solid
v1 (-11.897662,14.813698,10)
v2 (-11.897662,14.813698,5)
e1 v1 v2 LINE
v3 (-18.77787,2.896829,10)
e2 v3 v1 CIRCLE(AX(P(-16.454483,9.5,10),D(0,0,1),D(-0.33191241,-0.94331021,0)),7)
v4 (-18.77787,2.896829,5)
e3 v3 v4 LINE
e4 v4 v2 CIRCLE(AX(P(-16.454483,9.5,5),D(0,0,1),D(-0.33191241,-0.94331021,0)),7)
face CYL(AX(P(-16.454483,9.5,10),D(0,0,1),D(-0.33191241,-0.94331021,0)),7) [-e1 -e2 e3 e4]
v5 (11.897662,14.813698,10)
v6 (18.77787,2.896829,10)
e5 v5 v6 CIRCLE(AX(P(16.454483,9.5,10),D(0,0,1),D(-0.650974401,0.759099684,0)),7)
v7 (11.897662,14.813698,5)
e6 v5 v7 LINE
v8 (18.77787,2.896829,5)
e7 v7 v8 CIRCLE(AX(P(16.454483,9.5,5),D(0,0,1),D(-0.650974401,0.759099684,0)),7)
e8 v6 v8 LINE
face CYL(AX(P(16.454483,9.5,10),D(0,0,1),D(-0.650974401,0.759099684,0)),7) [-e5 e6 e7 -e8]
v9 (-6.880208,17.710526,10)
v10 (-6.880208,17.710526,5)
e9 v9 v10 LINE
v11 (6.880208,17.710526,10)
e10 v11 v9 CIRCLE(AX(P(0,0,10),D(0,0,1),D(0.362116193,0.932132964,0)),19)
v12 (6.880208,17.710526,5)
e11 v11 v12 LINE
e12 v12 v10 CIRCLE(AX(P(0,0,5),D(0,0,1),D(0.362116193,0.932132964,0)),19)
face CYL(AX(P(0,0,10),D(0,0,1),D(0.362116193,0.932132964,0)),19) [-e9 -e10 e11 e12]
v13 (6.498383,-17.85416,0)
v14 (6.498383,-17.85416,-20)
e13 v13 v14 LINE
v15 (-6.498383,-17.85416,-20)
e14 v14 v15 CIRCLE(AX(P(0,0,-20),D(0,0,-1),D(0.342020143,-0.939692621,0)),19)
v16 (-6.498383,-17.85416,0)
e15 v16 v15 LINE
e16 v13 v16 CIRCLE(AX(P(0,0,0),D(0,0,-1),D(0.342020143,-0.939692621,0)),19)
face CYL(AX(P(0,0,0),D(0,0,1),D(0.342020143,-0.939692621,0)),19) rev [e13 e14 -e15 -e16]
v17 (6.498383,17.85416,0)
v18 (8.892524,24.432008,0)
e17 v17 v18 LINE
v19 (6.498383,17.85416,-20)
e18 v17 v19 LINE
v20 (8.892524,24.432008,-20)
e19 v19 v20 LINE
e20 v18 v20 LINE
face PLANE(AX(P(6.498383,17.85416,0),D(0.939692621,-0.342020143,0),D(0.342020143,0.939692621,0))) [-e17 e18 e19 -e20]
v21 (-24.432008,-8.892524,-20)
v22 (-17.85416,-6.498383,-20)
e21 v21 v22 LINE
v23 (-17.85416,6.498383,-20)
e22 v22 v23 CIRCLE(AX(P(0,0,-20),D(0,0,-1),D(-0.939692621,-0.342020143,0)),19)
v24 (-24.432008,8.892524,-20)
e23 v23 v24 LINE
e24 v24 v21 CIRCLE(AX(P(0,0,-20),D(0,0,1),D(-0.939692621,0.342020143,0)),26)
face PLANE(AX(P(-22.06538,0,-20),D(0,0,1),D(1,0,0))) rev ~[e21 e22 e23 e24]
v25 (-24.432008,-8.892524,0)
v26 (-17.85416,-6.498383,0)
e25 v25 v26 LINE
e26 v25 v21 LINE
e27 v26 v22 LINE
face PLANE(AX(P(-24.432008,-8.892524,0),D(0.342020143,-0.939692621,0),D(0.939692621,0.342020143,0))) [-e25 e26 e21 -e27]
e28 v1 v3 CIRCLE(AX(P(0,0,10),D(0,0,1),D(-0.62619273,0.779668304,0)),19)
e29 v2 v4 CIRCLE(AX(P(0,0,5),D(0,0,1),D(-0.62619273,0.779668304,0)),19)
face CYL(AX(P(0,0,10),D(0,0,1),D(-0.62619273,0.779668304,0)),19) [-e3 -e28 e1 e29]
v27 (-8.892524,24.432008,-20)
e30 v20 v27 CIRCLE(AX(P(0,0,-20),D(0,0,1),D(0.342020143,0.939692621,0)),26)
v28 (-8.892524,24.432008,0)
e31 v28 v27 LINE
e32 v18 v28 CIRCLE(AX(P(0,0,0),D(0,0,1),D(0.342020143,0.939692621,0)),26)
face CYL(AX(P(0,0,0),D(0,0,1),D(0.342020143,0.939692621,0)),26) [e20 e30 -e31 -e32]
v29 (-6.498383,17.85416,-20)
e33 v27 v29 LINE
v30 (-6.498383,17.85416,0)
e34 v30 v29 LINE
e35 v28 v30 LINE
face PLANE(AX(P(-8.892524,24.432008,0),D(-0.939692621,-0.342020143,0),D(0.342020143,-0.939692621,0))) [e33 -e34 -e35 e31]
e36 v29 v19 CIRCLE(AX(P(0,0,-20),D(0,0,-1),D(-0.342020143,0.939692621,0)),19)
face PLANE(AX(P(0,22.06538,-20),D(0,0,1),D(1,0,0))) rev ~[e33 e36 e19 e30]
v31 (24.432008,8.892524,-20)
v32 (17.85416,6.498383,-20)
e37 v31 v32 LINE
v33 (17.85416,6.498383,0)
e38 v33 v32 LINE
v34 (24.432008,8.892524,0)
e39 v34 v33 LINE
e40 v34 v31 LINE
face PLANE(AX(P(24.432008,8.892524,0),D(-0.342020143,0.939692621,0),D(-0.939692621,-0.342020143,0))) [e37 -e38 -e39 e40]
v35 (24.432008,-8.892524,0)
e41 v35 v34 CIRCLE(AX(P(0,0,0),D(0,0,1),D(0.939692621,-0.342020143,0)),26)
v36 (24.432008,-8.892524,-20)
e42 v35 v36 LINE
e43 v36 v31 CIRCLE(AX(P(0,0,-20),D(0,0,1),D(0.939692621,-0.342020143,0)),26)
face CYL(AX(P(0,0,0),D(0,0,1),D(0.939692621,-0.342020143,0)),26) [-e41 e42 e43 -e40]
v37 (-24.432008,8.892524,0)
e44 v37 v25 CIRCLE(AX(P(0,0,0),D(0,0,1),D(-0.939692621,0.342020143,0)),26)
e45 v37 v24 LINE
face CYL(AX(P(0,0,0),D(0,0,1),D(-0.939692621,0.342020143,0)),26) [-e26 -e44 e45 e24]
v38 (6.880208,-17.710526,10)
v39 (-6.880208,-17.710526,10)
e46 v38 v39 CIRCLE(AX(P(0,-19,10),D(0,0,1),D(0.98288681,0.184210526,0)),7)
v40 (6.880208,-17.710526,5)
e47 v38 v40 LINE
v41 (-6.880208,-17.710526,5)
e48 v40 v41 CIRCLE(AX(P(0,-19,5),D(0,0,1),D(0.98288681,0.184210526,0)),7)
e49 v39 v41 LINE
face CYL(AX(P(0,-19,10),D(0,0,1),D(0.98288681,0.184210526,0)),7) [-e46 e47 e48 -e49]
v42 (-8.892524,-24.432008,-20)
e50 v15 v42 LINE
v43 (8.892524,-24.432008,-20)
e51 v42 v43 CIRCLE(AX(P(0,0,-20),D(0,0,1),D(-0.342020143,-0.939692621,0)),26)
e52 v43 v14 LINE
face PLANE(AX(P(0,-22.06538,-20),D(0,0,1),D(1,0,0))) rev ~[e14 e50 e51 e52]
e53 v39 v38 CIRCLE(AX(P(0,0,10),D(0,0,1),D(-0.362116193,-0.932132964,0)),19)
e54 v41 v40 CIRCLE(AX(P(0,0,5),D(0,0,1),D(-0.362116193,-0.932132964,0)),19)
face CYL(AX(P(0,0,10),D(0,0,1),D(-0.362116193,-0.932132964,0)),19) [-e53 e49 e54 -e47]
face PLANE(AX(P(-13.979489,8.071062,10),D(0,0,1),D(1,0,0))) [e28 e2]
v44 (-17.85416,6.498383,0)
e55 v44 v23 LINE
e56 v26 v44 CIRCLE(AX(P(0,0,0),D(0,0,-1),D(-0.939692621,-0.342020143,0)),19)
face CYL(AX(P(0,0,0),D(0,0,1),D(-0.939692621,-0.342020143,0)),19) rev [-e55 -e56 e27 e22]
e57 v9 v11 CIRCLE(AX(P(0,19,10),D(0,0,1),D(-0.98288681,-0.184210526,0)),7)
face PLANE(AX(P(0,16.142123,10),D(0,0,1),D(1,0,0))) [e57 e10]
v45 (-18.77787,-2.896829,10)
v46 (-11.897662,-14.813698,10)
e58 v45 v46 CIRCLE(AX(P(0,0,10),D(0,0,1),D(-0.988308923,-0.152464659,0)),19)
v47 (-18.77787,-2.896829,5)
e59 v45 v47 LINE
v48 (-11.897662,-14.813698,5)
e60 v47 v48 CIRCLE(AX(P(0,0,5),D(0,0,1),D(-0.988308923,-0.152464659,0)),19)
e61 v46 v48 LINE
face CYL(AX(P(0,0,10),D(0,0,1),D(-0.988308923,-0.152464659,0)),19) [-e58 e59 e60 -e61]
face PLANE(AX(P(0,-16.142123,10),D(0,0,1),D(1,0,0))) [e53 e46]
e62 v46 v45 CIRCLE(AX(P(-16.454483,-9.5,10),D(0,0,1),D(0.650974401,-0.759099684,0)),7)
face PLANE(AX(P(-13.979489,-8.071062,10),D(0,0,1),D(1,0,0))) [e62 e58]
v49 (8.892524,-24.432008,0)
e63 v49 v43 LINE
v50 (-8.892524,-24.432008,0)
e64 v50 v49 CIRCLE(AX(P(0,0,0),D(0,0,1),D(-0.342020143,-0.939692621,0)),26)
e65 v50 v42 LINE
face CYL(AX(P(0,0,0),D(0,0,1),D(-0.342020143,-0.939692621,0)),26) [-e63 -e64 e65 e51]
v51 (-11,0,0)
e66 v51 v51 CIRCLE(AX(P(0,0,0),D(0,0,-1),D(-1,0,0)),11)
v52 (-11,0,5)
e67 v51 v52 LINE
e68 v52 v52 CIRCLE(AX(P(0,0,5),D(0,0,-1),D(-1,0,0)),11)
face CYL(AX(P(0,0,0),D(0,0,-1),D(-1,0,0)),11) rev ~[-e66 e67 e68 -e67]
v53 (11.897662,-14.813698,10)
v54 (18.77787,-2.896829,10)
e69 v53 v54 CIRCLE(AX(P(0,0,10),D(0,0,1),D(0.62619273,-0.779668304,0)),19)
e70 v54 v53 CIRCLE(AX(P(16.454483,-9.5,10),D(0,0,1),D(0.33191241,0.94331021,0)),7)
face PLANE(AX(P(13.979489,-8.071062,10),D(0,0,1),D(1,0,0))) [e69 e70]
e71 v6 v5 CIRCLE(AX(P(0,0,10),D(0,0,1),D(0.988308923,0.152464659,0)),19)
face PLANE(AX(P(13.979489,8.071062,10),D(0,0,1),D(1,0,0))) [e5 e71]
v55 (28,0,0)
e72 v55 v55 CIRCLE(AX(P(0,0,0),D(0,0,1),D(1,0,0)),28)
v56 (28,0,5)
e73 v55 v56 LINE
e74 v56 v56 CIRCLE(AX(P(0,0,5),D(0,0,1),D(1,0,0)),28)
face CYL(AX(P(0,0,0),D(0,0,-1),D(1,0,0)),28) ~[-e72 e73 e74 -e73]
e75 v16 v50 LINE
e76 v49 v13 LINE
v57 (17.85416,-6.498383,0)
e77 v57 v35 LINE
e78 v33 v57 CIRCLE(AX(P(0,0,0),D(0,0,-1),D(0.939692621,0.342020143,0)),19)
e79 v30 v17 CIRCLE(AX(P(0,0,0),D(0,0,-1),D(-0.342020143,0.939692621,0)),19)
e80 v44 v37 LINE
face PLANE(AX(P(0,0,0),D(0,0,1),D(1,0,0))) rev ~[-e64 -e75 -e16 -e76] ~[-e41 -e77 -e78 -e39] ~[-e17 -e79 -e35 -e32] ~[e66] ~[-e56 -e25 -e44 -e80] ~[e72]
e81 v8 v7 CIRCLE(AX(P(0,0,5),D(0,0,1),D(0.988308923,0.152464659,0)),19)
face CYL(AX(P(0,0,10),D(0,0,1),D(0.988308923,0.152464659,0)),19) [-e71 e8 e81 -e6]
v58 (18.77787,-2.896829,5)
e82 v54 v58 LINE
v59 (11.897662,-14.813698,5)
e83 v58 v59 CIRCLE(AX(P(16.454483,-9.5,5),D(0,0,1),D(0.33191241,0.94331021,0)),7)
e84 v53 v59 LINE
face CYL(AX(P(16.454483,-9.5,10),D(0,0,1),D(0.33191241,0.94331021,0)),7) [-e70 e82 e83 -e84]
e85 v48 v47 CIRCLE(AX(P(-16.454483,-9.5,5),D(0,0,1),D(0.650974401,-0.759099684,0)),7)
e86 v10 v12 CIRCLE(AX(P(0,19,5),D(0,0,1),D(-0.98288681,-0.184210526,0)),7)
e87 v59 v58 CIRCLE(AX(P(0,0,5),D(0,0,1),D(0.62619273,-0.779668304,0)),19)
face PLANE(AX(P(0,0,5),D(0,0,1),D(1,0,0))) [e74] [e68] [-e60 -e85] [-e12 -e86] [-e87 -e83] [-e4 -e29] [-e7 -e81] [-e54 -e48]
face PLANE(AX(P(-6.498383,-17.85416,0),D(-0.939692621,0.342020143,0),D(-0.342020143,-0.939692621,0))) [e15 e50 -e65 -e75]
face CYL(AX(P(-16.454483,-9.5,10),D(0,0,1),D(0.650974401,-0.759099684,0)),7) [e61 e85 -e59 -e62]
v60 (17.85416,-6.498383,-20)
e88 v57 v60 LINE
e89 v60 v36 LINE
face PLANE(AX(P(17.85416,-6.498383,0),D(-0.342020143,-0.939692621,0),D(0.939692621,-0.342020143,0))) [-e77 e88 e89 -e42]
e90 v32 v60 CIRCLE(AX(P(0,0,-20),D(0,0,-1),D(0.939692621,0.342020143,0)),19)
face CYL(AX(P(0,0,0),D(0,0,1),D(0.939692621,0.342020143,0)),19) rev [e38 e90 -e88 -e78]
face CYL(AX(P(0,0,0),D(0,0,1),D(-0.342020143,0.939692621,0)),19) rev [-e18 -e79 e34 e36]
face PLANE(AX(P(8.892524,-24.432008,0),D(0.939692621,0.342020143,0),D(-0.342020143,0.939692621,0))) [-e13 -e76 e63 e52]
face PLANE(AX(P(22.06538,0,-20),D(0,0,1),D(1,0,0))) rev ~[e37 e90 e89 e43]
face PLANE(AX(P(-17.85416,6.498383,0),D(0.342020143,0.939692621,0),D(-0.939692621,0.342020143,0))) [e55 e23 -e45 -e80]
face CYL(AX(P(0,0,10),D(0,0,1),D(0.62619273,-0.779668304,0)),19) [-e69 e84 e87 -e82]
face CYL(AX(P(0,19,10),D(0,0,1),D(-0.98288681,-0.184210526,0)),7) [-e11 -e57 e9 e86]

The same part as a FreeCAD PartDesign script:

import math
import FreeCAD as App
import Part
import Sketcher

V = App.Vector
Q = App.Units.Quantity

doc = App.newDocument("Part")
params = doc.addObject("Spreadsheet::Sheet", "Params")
for row, (alias, value) in enumerate([
    ("sketch1_diameter", "56 mm"),
    ("pad1_length", "5 mm"),
    ("sketch2_radius", "19 mm"),
    ("sketch2_radius2", "26 mm"),
    ("pad2_length", "20 mm"),
    ("sketch3_diameter", "22 mm"),
    ("pocket1_length", "5 mm"),
    ("sketch4_radius", "7 mm"),
    ("sketch4_radius2", "19 mm"),
    ("pad3_length", "5 mm"),
], start=1):
    params.set(f"A{row}", alias)
    params.set(f"B{row}", "=" + value)
    params.setAlias(f"B{row}", alias)

body = doc.addObject("PartDesign::Body", "Body")

sketch1 = body.newObject("Sketcher::SketchObject", "Sketch")
sketch1.AttachmentSupport = (doc.getObject("XY_Plane"), [""])
sketch1.MapMode = "FlatFace"
sketch1.addGeometry(Part.Circle(V(0, 0, 0), V(0, 0, 1), 28), False)
sketch1.addConstraint([
    Sketcher.Constraint("Coincident", 0, 3, -1, 1),
    Sketcher.Constraint("Diameter", 0, 56.0),
])
sketch1.setExpression("Constraints[1]", "Params.sketch1_diameter")
pad1 = body.newObject("PartDesign::Pad", "Pad")
pad1.Profile = sketch1
pad1.setExpression("Length", "Params.pad1_length")

sketch2 = body.newObject("Sketcher::SketchObject", "Sketch001")
sketch2.AttachmentSupport = (doc.getObject("XY_Plane"), [""])
sketch2.MapMode = "FlatFace"
sketch2.addGeometry([
    Part.LineSegment(V(9, 24, 0), V(6, 18, 0)),
    Part.ArcOfCircle(Part.Circle(V(0, 0, 0), V(0, 0, 1), 19), math.radians(70), math.radians(110)),
    Part.LineSegment(V(-6, 18, 0), V(-9, 24, 0)),
    Part.ArcOfCircle(Part.Circle(V(0, 0, 0), V(0, 0, 1), 26), math.radians(70), math.radians(110)),
    Part.LineSegment(V(-24, 9, 0), V(-18, 6, 0)),
    Part.ArcOfCircle(Part.Circle(V(0, 0, 0), V(0, 0, 1), 19), math.radians(160), math.radians(200)),
    Part.LineSegment(V(-18, -6, 0), V(-24, -9, 0)),
    Part.ArcOfCircle(Part.Circle(V(0, 0, 0), V(0, 0, 1), 26), math.radians(160), math.radians(200)),
    Part.LineSegment(V(-9, -24, 0), V(-6, -18, 0)),
    Part.ArcOfCircle(Part.Circle(V(0, 0, 0), V(0, 0, 1), 19), math.radians(-110), math.radians(-70)),
    Part.LineSegment(V(6, -18, 0), V(9, -24, 0)),
    Part.ArcOfCircle(Part.Circle(V(0, 0, 0), V(0, 0, 1), 26), math.radians(-110), math.radians(-70)),
    Part.LineSegment(V(24, -9, 0), V(18, -6, 0)),
    Part.ArcOfCircle(Part.Circle(V(0, 0, 0), V(0, 0, 1), 19), math.radians(-20), math.radians(20)),
    Part.LineSegment(V(18, 6, 0), V(24, 9, 0)),
    Part.ArcOfCircle(Part.Circle(V(0, 0, 0), V(0, 0, 1), 26), math.radians(-20), math.radians(20)),
], False)
sketch2.addConstraint([
    Sketcher.Constraint("Coincident", 0, 2, 1, 1),
    Sketcher.Constraint("Coincident", 1, 2, 2, 1),
    Sketcher.Constraint("Coincident", 2, 2, 3, 2),
    Sketcher.Constraint("Coincident", 3, 1, 0, 1),
    Sketcher.Constraint("Coincident", 4, 2, 5, 1),
    Sketcher.Constraint("Coincident", 5, 2, 6, 1),
    Sketcher.Constraint("Coincident", 6, 2, 7, 2),
    Sketcher.Constraint("Coincident", 7, 1, 4, 1),
    Sketcher.Constraint("Coincident", 8, 2, 9, 1),
    Sketcher.Constraint("Coincident", 9, 2, 10, 1),
    Sketcher.Constraint("Coincident", 10, 2, 11, 2),
    Sketcher.Constraint("Coincident", 11, 1, 8, 1),
    Sketcher.Constraint("Coincident", 12, 2, 13, 1),
    Sketcher.Constraint("Coincident", 13, 2, 14, 1),
    Sketcher.Constraint("Coincident", 14, 2, 15, 2),
    Sketcher.Constraint("Coincident", 15, 1, 12, 1),
    Sketcher.Constraint("Coincident", 1, 3, -1, 1),
    Sketcher.Constraint("Coincident", 3, 3, -1, 1),
    Sketcher.Constraint("Coincident", 5, 3, -1, 1),
    Sketcher.Constraint("Coincident", 7, 3, -1, 1),
    Sketcher.Constraint("Coincident", 9, 3, -1, 1),
    Sketcher.Constraint("Coincident", 11, 3, -1, 1),
    Sketcher.Constraint("Coincident", 13, 3, -1, 1),
    Sketcher.Constraint("Coincident", 15, 3, -1, 1),
    Sketcher.Constraint("Equal", 1, 5),
    Sketcher.Constraint("Equal", 3, 7),
    Sketcher.Constraint("Equal", 5, 9),
    Sketcher.Constraint("Equal", 7, 11),
    Sketcher.Constraint("Equal", 9, 13),
    Sketcher.Constraint("Equal", 11, 15),
    Sketcher.Constraint("Perpendicular", 0, 4),
    Sketcher.Constraint("Perpendicular", 2, 6),
    Sketcher.Constraint("Perpendicular", 4, 8),
    Sketcher.Constraint("Perpendicular", 6, 10),
    Sketcher.Constraint("Perpendicular", 8, 12),
    Sketcher.Constraint("Perpendicular", 10, 14),
    Sketcher.Constraint("Horizontal", 0, 2, 1, 2),
    Sketcher.Constraint("Horizontal", 2, 2, 3, 1),
    Sketcher.Constraint("Horizontal", 8, 2, 9, 2),
    Sketcher.Constraint("Horizontal", 5, 2, 12, 2),
    Sketcher.Constraint("Horizontal", 4, 2, 13, 2),
    Sketcher.Constraint("Vertical", 4, 2, 5, 2),
    Sketcher.Constraint("Vertical", 1, 2, 8, 2),
    Sketcher.Constraint("Radius", 1, 19.0),
    Sketcher.Constraint("Radius", 3, 26.0),
    Sketcher.Constraint("Angle", 0, Q("-110 deg")),
    Sketcher.Constraint("DistanceY", -1, 1, 0, 2, 17.85416),
    Sketcher.Constraint("DistanceX", 4, 2, -1, 1, 17.85416),
])
sketch2.setExpression("Constraints[43]", "Params.sketch2_radius")
sketch2.setExpression("Constraints[44]", "Params.sketch2_radius2")
pad2 = body.newObject("PartDesign::Pad", "Pad001")
pad2.Profile = sketch2
pad2.setExpression("Length", "Params.pad2_length")
pad2.Reversed = True

sketch3 = body.newObject("Sketcher::SketchObject", "Sketch002")
sketch3.AttachmentSupport = (doc.getObject("XY_Plane"), [""])
sketch3.MapMode = "FlatFace"
sketch3.addGeometry(Part.Circle(V(0, 0, 0), V(0, 0, 1), 11), False)
sketch3.addConstraint([
    Sketcher.Constraint("Coincident", 0, 3, -1, 1),
    Sketcher.Constraint("Diameter", 0, 22.0),
])
sketch3.setExpression("Constraints[1]", "Params.sketch3_diameter")
pocket1 = body.newObject("PartDesign::Pocket", "Pocket")
pocket1.Profile = sketch3
pocket1.setExpression("Length", "Params.pocket1_length")
pocket1.Reversed = True

sketch4 = body.newObject("Sketcher::SketchObject", "Sketch003")
sketch4.AttachmentSupport = (doc.getObject("XY_Plane"), [""])
sketch4.MapMode = "FlatFace"
sketch4.AttachmentOffset = App.Placement(V(0, 0, 10), App.Rotation())
sketch4.addGeometry([
    Part.ArcOfCircle(Part.Circle(V(0, 19, 0), V(0, 0, 1), 7), math.radians(-169), math.radians(-11)),
    Part.ArcOfCircle(Part.Circle(V(0, 0, 0), V(0, 0, 1), 19), math.radians(69), math.radians(111)),
    Part.ArcOfCircle(Part.Circle(V(16, 10, 0), V(0, 0, 1), 7), math.radians(131), math.radians(289)),
    Part.ArcOfCircle(Part.Circle(V(0, 0, 0), V(0, 0, 1), 19), math.radians(9), math.radians(51)),
    Part.ArcOfCircle(Part.Circle(V(16, -10, 0), V(0, 0, 1), 7), math.radians(71), math.radians(229)),
    Part.ArcOfCircle(Part.Circle(V(0, 0, 0), V(0, 0, 1), 19), math.radians(-51), math.radians(-9)),
    Part.ArcOfCircle(Part.Circle(V(0, -19, 0), V(0, 0, 1), 7), math.radians(11), math.radians(169)),
    Part.ArcOfCircle(Part.Circle(V(0, 0, 0), V(0, 0, 1), 19), math.radians(-111), math.radians(-69)),
    Part.ArcOfCircle(Part.Circle(V(-16, -10, 0), V(0, 0, 1), 7), math.radians(-49), math.radians(109)),
    Part.ArcOfCircle(Part.Circle(V(0, 0, 0), V(0, 0, 1), 19), math.radians(-171), math.radians(-129)),
    Part.ArcOfCircle(Part.Circle(V(-16, 10, 0), V(0, 0, 1), 7), math.radians(-109), math.radians(49)),
    Part.ArcOfCircle(Part.Circle(V(0, 0, 0), V(0, 0, 1), 19), math.radians(129), math.radians(171)),
], False)
sketch4.addConstraint([
    Sketcher.Constraint("Coincident", 0, 1, 1, 2),
    Sketcher.Constraint("Coincident", 1, 1, 0, 2),
    Sketcher.Constraint("Coincident", 2, 1, 3, 2),
    Sketcher.Constraint("Coincident", 3, 1, 2, 2),
    Sketcher.Constraint("Coincident", 4, 1, 5, 2),
    Sketcher.Constraint("Coincident", 5, 1, 4, 2),
    Sketcher.Constraint("Coincident", 6, 1, 7, 2),
    Sketcher.Constraint("Coincident", 7, 1, 6, 2),
    Sketcher.Constraint("Coincident", 8, 1, 9, 2),
    Sketcher.Constraint("Coincident", 9, 1, 8, 2),
    Sketcher.Constraint("Coincident", 10, 1, 11, 2),
    Sketcher.Constraint("Coincident", 11, 1, 10, 2),
    Sketcher.Constraint("Coincident", 1, 3, -1, 1),
    Sketcher.Constraint("Coincident", 3, 3, -1, 1),
    Sketcher.Constraint("Coincident", 5, 3, -1, 1),
    Sketcher.Constraint("Coincident", 7, 3, -1, 1),
    Sketcher.Constraint("Coincident", 9, 3, -1, 1),
    Sketcher.Constraint("Coincident", 11, 3, -1, 1),
    Sketcher.Constraint("Equal", 0, 2),
    Sketcher.Constraint("Equal", 1, 3),
    Sketcher.Constraint("Equal", 2, 4),
    Sketcher.Constraint("Equal", 3, 5),
    Sketcher.Constraint("Equal", 4, 6),
    Sketcher.Constraint("Equal", 5, 7),
    Sketcher.Constraint("Equal", 6, 8),
    Sketcher.Constraint("Equal", 7, 9),
    Sketcher.Constraint("Equal", 8, 10),
    Sketcher.Constraint("Equal", 9, 11),
    Sketcher.Constraint("Symmetric", 0, 3, 6, 3, -1, 1),
    Sketcher.Constraint("Symmetric", 2, 3, 8, 3, -1, 1),
    Sketcher.Constraint("Symmetric", 4, 3, 10, 3, -1, 1),
    Sketcher.Constraint("Symmetric", 4, 3, 8, 3, -2),
    Sketcher.Constraint("PointOnObject", 0, 3, -2),
    Sketcher.Constraint("Radius", 0, 7.0),
    Sketcher.Constraint("Radius", 1, 19.0),
    Sketcher.Constraint("DistanceY", -1, 1, 0, 3, 19.0),
    Sketcher.Constraint("DistanceY", 4, 3, 2, 3, 19.0),
    Sketcher.Constraint("DistanceX", -1, 1, 2, 1, 11.897662),
])
sketch4.setExpression("Constraints[33]", "Params.sketch4_radius")
sketch4.setExpression("Constraints[34]", "Params.sketch4_radius2")
pad3 = body.newObject("PartDesign::Pad", "Pad002")
pad3.Profile = sketch4
pad3.setExpression("Length", "Params.pad3_length")
pad3.Reversed = True

doc.recompute()
